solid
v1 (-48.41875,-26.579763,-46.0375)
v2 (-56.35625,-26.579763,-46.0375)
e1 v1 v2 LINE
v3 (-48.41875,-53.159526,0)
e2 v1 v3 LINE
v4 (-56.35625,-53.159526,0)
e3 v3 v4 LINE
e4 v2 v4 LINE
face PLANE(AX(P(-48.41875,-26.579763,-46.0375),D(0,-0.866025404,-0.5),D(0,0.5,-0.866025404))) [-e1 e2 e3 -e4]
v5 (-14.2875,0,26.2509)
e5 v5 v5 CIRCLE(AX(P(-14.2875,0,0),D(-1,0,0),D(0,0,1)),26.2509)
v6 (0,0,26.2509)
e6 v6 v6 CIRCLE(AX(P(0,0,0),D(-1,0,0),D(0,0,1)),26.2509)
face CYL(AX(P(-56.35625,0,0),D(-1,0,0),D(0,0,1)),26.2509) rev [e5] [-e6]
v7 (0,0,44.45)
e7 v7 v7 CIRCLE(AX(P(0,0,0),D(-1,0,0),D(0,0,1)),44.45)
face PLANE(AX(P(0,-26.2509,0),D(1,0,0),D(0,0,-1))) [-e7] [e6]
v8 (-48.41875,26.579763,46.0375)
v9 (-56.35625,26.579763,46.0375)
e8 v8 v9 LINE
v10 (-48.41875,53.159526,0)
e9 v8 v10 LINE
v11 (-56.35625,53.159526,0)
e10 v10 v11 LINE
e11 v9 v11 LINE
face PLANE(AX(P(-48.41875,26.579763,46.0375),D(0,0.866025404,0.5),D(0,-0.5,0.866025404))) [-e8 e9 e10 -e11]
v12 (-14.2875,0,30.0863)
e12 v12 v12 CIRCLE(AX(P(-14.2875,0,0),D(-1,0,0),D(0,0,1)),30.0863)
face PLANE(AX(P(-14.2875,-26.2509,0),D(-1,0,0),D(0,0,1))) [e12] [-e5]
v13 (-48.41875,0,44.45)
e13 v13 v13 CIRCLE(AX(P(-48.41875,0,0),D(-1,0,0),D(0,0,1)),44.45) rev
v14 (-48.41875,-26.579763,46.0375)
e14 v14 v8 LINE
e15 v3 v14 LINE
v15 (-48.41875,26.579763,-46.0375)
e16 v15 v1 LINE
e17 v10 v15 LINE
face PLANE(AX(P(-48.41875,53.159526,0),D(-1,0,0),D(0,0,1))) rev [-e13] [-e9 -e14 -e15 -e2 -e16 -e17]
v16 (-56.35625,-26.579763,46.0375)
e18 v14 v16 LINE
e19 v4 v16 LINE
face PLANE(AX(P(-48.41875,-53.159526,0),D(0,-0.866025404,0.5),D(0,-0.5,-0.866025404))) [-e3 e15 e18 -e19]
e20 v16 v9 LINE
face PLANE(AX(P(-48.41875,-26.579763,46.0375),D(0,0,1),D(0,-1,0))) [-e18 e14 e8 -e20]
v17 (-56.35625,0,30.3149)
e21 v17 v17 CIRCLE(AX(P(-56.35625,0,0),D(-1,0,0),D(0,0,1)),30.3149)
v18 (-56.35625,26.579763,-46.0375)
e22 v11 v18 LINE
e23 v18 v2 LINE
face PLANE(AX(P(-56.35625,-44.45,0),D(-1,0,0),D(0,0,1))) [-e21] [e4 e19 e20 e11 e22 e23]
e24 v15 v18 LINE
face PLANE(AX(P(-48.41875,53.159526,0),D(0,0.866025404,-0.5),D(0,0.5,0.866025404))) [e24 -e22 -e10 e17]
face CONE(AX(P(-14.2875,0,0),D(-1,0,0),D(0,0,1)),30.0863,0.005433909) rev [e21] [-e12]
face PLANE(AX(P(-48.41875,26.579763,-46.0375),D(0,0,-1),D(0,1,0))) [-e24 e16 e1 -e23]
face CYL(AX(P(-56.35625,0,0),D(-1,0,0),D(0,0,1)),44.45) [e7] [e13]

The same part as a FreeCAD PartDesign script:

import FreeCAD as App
import Part
import Sketcher
from FreeCAD import Vector
Q = App.Units.Quantity


def add_polygon(sketch, points):
    """Adds a closed chain of lines whose ends are joined by coincident constraints."""
    first, n = sketch.GeometryCount, len(points)
    for a, b in zip(points, points[1:] + points[:1]):
        sketch.addGeometry(Part.LineSegment(App.Vector(*a, 0), App.Vector(*b, 0)), False)
    for i in range(n):
        sketch.addConstraint(Sketcher.Constraint("Coincident", first + i, 2, first + (i + 1) % n, 1))

doc = App.newDocument("Part")
params = doc.addObject("Spreadsheet::Sheet", "Params")
for row, (alias, value) in enumerate([
    ("sketch1_width", "2.21875 in"),
    ("sketch1_width2", "0.5625 in"),
    ("sketch1_height", "0.151 in"),
    ("revolution_angle", "360 deg"),
    ("sketch2_diameter", "2.387 in"),
    ("pad1_length", "0.3125 in"),
], start=1):
    params.set(f"A{row}", alias)
    params.set(f"B{row}", "=" + value)
    params.setAlias(f"B{row}", alias)

body = doc.addObject("PartDesign::Body", "Body")

sketch1 = doc.addObject("Sketcher::SketchObject", "Sketch")
body.addObject(sketch1)
sketch1.AttachmentSupport = (doc.XY_Plane, [""])
sketch1.MapMode = "FlatFace"
add_polygon(sketch1, [(-56.35625, -44.45), (0, -44.45), (0, -26.2509), (-14.2875, -26.2509), (-14.2875, -30.0863), (-56.35625, -30.3149)])
sketch1.addConstraint([
    Sketcher.Constraint("Horizontal", 0),
    Sketcher.Constraint("Vertical", 1),
    Sketcher.Constraint("Horizontal", 2),
    Sketcher.Constraint("Vertical", 3),
    Sketcher.Constraint("Vertical", 5),
    Sketcher.Constraint("PointOnObject", 0, 2, -2),
    Sketcher.Constraint("DistanceX", 0, 1, 0, 2, Q("2.21875 in")),
    Sketcher.Constraint("DistanceX", 2, 2, 2, 1, Q("0.5625 in")),
    Sketcher.Constraint("DistanceY", 3, 2, 3, 1, Q("0.151 in")),
    Sketcher.Constraint("DistanceY", 0, 2, -1, 1, Q("1.75 in")),
    Sketcher.Constraint("DistanceY", 4, 2, 2, 2, Q("0.16 in")),
    Sketcher.Constraint("DistanceY", 1, 1, 1, 2, Q("0.7165 in")),
])
sketch1.setExpression("Constraints[12]", "Params.sketch1_width")
sketch1.setExpression("Constraints[13]", "Params.sketch1_width2")
sketch1.setExpression("Constraints[14]", "Params.sketch1_height")
revolution = doc.addObject("PartDesign::Revolution", "Revolution")
body.addObject(revolution)
revolution.Profile = sketch1
revolution.ReferenceAxis = (sketch1, ["H_Axis"])
revolution.setExpression("Angle", "Params.revolution_angle")

sketch2 = doc.addObject("Sketcher::SketchObject", "Sketch001")
body.addObject(sketch2)
sketch2.AttachmentSupport = (doc.YZ_Plane, [""])
sketch2.MapMode = "FlatFace"
sketch2.AttachmentOffset = App.Placement(Vector(0, 0, -2.21875 * 25.4), App.Rotation())
add_polygon(sketch2, [(53.159526, 0), (26.579763, -46.0375), (-26.579763, -46.0375), (-53.159526, 0), (-26.579763, 46.0375), (26.579763, 46.0375)])
sketch2.addGeometry(Part.Circle(Vector(0, 0, 0), Vector(0, 0, 1), 30.3149), False)
sketch2.addConstraint([
    Sketcher.Constraint("Horizontal", 1),
    Sketcher.Constraint("Horizontal", 4),
    Sketcher.Constraint("Coincident", 6, 3, -1, 1),
    Sketcher.Constraint("Symmetric", 0, 2, 3, 2, -1, 1),
    Sketcher.Constraint("Symmetric", 2, 2, 5, 2, -1, 1),
    Sketcher.Constraint("PointOnObject", 2, 2, -1),
    Sketcher.Constraint("Parallel", 2, 5),
    Sketcher.Constraint("Vertical", 1, 2, 3, 2),
    Sketcher.Constraint("Diameter", 6, Q("2.387 in")),
    Sketcher.Constraint("Angle", 0, Q("-120 deg")),
    Sketcher.Constraint("DistanceY", 0, 2, -1, 1, Q("1.8125 in")),
    Sketcher.Constraint("DistanceX", 1, 2, 1, 1, Q("53.159526 mm")),
])
sketch2.setExpression("Constraints[14]", "Params.sketch2_diameter")
pad1 = doc.addObject("PartDesign::Pad", "Pad")
body.addObject(pad1)
pad1.Profile = sketch2
pad1.setExpression("Length", "Params.pad1_length")

doc.recompute()
